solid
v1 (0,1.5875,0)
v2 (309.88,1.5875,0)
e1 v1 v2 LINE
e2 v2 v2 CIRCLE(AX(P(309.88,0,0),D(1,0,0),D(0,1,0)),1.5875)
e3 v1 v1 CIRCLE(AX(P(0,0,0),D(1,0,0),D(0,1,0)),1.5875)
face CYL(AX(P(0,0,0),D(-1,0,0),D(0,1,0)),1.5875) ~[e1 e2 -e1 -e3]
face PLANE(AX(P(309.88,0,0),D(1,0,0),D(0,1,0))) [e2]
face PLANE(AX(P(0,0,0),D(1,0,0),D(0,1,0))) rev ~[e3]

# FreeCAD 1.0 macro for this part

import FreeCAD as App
import Part
import Sketcher
from FreeCAD import Vector
Q = App.Units.Quantity

doc = App.newDocument("Part")
body = doc.addObject("PartDesign::Body", "Body")

# Sketch on YZ plane
sketch1 = doc.addObject("Sketcher::SketchObject", "Sketch")
body.addObject(sketch1)
sketch1.AttachmentSupport = (doc.YZ_Plane, [""])
sketch1.MapMode = "FlatFace"
sketch1.addGeometry(Part.Circle(Vector(0, 0, 0), Vector(0, 0, 1), 1.6), False)
sketch1.addConstraint([
    Sketcher.Constraint("Coincident", 0, 3, -1, 1),
    Sketcher.Constraint("Diameter", 0, Q("0.125 in")),
])
pad1 = doc.addObject("PartDesign::Pad", "Pad")
body.addObject(pad1)
pad1.Profile = sketch1
pad1.Length = Q("12.2 in")

doc.recompute()
